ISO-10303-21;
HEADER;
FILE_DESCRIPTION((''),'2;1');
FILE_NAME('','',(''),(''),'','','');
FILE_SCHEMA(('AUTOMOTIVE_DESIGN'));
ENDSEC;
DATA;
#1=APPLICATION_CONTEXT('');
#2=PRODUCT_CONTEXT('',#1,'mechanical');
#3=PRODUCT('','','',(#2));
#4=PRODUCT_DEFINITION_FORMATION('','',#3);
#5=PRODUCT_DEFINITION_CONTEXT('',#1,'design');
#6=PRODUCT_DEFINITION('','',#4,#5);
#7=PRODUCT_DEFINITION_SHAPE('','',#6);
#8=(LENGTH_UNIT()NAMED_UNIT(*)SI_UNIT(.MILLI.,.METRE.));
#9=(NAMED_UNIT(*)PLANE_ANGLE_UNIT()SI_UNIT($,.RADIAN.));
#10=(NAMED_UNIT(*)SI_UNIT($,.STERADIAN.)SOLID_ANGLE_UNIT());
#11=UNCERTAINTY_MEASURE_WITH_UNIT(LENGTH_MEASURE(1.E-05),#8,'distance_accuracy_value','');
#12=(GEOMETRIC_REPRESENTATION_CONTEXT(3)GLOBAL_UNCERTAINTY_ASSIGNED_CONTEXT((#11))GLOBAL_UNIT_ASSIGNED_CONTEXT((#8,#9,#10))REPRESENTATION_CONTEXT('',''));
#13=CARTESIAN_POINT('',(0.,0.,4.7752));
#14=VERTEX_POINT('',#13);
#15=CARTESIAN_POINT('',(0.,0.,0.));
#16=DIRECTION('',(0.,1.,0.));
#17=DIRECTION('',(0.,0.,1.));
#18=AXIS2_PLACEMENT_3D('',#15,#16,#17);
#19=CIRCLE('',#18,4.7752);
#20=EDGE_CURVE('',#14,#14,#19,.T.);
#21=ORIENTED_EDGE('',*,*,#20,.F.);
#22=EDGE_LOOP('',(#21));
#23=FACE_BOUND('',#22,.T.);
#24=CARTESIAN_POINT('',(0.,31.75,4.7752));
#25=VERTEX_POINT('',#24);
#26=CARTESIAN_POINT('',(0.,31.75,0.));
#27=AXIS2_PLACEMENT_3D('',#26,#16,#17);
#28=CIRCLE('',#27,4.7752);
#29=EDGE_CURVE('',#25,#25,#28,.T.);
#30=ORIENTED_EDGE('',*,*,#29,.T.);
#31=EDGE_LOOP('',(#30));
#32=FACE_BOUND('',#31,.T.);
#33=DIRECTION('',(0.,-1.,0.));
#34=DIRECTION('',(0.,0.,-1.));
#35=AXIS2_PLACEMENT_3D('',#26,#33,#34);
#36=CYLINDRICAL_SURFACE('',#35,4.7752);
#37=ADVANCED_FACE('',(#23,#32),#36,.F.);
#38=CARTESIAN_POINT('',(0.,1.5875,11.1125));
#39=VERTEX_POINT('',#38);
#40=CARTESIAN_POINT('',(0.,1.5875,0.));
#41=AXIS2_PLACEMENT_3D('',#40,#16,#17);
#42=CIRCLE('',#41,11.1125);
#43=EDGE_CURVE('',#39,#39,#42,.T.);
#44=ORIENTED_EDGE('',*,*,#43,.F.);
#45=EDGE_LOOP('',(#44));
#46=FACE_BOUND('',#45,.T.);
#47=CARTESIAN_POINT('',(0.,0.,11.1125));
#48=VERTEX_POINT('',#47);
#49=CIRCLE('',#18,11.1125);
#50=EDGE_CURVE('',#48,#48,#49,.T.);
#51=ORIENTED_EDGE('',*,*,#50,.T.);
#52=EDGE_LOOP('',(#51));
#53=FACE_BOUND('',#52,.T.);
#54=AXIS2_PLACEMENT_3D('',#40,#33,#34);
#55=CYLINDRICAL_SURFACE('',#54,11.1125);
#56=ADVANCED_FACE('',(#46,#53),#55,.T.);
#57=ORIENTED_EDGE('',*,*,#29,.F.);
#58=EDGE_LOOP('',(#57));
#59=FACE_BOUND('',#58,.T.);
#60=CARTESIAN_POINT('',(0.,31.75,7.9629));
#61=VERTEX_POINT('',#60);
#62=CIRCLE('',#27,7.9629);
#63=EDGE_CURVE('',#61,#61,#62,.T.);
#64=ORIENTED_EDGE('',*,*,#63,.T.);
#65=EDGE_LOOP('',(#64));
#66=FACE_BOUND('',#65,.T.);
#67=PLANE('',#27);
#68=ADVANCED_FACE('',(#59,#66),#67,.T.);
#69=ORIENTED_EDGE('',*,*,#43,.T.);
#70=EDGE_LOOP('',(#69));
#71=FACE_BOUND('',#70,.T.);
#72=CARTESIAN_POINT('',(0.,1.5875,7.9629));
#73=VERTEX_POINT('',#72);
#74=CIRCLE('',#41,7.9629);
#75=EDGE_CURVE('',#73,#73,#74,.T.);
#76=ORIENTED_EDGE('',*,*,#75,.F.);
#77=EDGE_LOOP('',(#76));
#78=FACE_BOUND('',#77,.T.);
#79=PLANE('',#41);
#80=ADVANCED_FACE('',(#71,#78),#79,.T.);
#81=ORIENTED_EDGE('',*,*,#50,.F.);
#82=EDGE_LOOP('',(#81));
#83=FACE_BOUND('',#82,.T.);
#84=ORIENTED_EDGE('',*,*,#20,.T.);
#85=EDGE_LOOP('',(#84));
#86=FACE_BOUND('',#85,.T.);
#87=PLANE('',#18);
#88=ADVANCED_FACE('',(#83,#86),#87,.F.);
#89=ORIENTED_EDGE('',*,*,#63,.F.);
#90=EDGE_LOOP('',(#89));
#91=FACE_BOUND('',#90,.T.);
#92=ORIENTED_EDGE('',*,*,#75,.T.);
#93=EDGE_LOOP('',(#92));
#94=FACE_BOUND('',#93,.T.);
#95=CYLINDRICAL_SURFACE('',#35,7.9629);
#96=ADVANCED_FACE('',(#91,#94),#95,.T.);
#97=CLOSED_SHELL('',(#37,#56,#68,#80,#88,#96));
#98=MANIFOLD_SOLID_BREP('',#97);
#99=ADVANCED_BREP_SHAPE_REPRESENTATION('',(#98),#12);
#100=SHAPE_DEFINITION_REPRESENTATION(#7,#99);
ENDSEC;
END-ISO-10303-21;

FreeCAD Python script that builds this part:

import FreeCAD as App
import Part
import Sketcher
from FreeCAD import Vector
Q = App.Units.Quantity

doc = App.newDocument("Part")
body = doc.addObject("PartDesign::Body", "Body")

sketch1 = body.newObject("Sketcher::SketchObject", "Sketch")
sketch1.AttachmentSupport = (doc.getObject("XZ_Plane"), [""])
sketch1.MapMode = "FlatFace"
sketch1.addGeometry([
    Part.Circle(Vector(0, 0, 0), Vector(0, 0, 1), 8),
    Part.Circle(Vector(0, 0, 0), Vector(0, 0, 1), 4.8),
], False)
sketch1.addConstraint([
    Sketcher.Constraint("Coincident", 0, 3, -1, 1),
    Sketcher.Constraint("Coincident", 1, 3, -1, 1),
    Sketcher.Constraint("Diameter", 0, Q("0.627 in")),
    Sketcher.Constraint("Diameter", 1, Q("0.376 in")),
])
pad1 = body.newObject("PartDesign::Pad", "Pad")
pad1.Profile = sketch1
pad1.Length = Q("1.25 in")
pad1.Reversed = True

sketch2 = body.newObject("Sketcher::SketchObject", "Sketch001")
sketch2.AttachmentSupport = (doc.getObject("XZ_Plane"), [""])
sketch2.MapMode = "FlatFace"
sketch2.addGeometry([
    Part.Circle(Vector(0, 0, 0), Vector(0, 0, 1), 11),
    Part.Circle(Vector(0, 0, 0), Vector(0, 0, 1), 8),
], False)
sketch2.addConstraint([
    Sketcher.Constraint("Coincident", 0, 3, -1, 1),
    Sketcher.Constraint("Coincident", 1, 3, -1, 1),
    Sketcher.Constraint("Diameter", 0, Q("0.875 in")),
    Sketcher.Constraint("Diameter", 1, Q("0.627 in")),
])
pad2 = body.newObject("PartDesign::Pad", "Pad001")
pad2.Profile = sketch2
pad2.Length = Q("0.0625 in")
pad2.Reversed = True

doc.recompute()
